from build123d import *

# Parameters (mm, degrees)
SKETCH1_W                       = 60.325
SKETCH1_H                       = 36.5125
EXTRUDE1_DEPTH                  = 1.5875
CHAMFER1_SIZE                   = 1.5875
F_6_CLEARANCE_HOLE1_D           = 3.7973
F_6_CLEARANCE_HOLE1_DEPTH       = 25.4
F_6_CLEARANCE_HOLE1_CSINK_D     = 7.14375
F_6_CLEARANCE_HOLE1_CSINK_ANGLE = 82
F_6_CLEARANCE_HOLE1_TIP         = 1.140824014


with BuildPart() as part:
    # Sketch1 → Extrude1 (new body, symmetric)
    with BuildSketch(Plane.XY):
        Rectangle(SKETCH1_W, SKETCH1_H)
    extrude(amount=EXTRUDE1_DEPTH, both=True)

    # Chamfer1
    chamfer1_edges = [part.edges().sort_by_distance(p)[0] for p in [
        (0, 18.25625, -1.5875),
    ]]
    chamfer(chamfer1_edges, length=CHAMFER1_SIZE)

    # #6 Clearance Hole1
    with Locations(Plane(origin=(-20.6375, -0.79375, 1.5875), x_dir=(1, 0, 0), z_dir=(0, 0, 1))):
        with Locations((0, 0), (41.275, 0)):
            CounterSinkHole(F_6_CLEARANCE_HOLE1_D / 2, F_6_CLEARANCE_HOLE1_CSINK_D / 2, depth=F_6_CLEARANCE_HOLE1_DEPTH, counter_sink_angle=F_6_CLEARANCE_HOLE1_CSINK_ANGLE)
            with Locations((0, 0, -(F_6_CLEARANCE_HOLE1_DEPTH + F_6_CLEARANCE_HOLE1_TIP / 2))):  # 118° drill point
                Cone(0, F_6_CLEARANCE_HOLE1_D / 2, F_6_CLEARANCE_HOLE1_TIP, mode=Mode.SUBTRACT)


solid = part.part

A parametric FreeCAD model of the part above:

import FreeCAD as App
import Part
import Sketcher
Q = App.Units.Quantity


def edges_at(feature, points):
    """Names of the edges that pass closest to the given points."""
    edges = feature.Shape.Edges
    near = lambda p: min(range(len(edges)), key=lambda i: edges[i].distToShape(Part.Vertex(*p))[0])
    return sorted({f"Edge{near(p) + 1}" for p in points})

doc = App.newDocument("Part")
params = doc.addObject("Spreadsheet::Sheet", "Params")
for row, (alias, value) in enumerate([
    ("sketch1_width", "2.375 in"),
    ("sketch1_height", "1.4375 in"),
    ("pad1_length", "0.125 in"),
    ("chamfer_size", "0.0625 in"),
    ("hole_diameter", "0.1495 in"),
    ("hole_depth", "1 in"),
    ("hole_csink_diameter", "0.28125 in"),
], start=1):
    params.set(f"A{row}", alias)
    params.set(f"B{row}", "=" + value)
    params.setAlias(f"B{row}", alias)

body = doc.addObject("PartDesign::Body", "Body")

sketch1 = body.newObject("Sketcher::SketchObject", "Sketch")
sketch1.AttachmentSupport = (doc.getObject("XY_Plane"), [""])
sketch1.MapMode = "FlatFace"
sketch1.addGeometry([
    Part.LineSegment(App.Vector(-30.1625, 18.25625, 0), App.Vector(-30.1625, -18.25625, 0)),
    Part.LineSegment(App.Vector(-30.1625, -18.25625, 0), App.Vector(30.1625, -18.25625, 0)),
    Part.LineSegment(App.Vector(30.1625, -18.25625, 0), App.Vector(30.1625, 18.25625, 0)),
    Part.LineSegment(App.Vector(30.1625, 18.25625, 0), App.Vector(-30.1625, 18.25625, 0)),
], False)
sketch1.addConstraint([
    Sketcher.Constraint("Coincident", 0, 2, 1, 1),
    Sketcher.Constraint("Coincident", 1, 2, 2, 1),
    Sketcher.Constraint("Coincident", 2, 2, 3, 1),
    Sketcher.Constraint("Coincident", 3, 2, 0, 1),
    Sketcher.Constraint("Vertical", 0),
    Sketcher.Constraint("Horizontal", 1),
    Sketcher.Constraint("Vertical", 2),
    Sketcher.Constraint("Horizontal", 3),
    Sketcher.Constraint("Symmetric", 0, 2, 2, 2, -1, 1),
    Sketcher.Constraint("DistanceX", 1, 1, 1, 2, Q("2.375 in")),
    Sketcher.Constraint("DistanceY", 0, 2, 0, 1, Q("1.4375 in")),
])
sketch1.setExpression("Constraints[9]", "Params.sketch1_width")
sketch1.setExpression("Constraints[10]", "Params.sketch1_height")
pad1 = body.newObject("PartDesign::Pad", "Pad")
pad1.Profile = sketch1
pad1.setExpression("Length", "Params.pad1_length")
pad1.Midplane = True
doc.recompute()

chamfer = body.newObject("PartDesign::Chamfer", "Chamfer")
chamfer.Base = (pad1, edges_at(pad1, [(0, 18.256, -1.587)]))
chamfer.setExpression("Size", "Params.chamfer_size")

sketch2 = body.newObject("Sketcher::SketchObject", "Sketch001")
sketch2.AttachmentSupport = (doc.getObject("XY_Plane"), [""])
sketch2.MapMode = "FlatFace"
sketch2.AttachmentOffset = App.Placement(App.Vector(0, 0, 0.0625 * 25.4), App.Rotation())
sketch2.addGeometry([
    Part.Circle(App.Vector(-20.6375, -0.79375, 0), App.Vector(0, 0, 1), 1.89865),
    Part.Circle(App.Vector(20.6375, -0.79375, 0), App.Vector(0, 0, 1), 1.89865),
], False)
sketch2.addConstraint([
    Sketcher.Constraint("Equal", 0, 1),
    Sketcher.Constraint("Symmetric", 0, 3, 1, 3, -2),
    Sketcher.Constraint("Diameter", 0, Q("0.1495 in")),
    Sketcher.Constraint("DistanceX", 0, 3, -1, 1, Q("0.8125 in")),
    Sketcher.Constraint("DistanceY", 0, 3, -1, 1, Q("0.03125 in")),
])
doc.recompute()
hole = body.newObject("PartDesign::Hole", "Hole")
hole.Profile = sketch2
hole.ThreadType = "None"
hole.setExpression("Diameter", "Params.hole_diameter")
hole.DepthType = "Dimension"
hole.setExpression("Depth", "Params.hole_depth")
hole.DrillPoint = "Angled"
hole.DrillPointAngle = 118
hole.HoleCutType = "Countersink"
hole.setExpression("HoleCutDiameter", "Params.hole_csink_diameter")
hole.HoleCutCountersinkAngle = 82

doc.recompute()
